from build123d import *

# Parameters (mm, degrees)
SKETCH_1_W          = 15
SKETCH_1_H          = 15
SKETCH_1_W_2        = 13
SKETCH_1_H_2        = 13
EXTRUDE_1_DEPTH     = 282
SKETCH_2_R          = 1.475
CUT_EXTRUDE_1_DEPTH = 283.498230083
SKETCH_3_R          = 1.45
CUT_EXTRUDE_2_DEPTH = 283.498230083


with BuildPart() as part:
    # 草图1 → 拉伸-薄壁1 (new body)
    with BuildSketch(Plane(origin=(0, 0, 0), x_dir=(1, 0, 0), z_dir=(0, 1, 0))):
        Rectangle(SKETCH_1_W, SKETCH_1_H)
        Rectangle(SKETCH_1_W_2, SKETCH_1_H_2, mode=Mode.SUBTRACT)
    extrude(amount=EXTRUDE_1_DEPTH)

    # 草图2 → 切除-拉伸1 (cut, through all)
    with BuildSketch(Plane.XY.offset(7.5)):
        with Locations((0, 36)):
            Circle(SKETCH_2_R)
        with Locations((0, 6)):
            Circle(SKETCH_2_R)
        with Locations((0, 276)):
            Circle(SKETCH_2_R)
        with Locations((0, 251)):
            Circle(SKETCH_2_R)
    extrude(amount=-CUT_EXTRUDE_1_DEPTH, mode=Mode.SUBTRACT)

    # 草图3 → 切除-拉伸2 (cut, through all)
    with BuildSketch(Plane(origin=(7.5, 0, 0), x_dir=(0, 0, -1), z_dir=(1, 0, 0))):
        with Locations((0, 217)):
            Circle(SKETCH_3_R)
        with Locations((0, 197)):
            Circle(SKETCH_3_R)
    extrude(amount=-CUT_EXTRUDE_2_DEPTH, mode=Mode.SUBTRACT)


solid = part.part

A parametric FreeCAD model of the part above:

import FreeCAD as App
import Part
import Sketcher
from FreeCAD import Vector


def add_polygon(sketch, points):
    """Adds a closed chain of lines whose ends are joined by coincident constraints."""
    first, n = sketch.GeometryCount, len(points)
    for a, b in zip(points, points[1:] + points[:1]):
        sketch.addGeometry(Part.LineSegment(App.Vector(*a, 0), App.Vector(*b, 0)), False)
    for i in range(n):
        sketch.addConstraint(Sketcher.Constraint("Coincident", first + i, 2, first + (i + 1) % n, 1))

doc = App.newDocument("Part")
params = doc.addObject("Spreadsheet::Sheet", "Params")
for row, (alias, value) in enumerate([
    ("sketch1_width", "15 mm"),
    ("sketch1_width2", "13 mm"),
    ("pad1_length", "282 mm"),
    ("sketch2_diameter", "2.95 mm"),
    ("sketch3_diameter", "2.9 mm"),
], start=1):
    params.set(f"A{row}", alias)
    params.set(f"B{row}", "=" + value)
    params.setAlias(f"B{row}", alias)

body = doc.addObject("PartDesign::Body", "Body")

sketch1 = body.newObject("Sketcher::SketchObject", "Sketch")
sketch1.AttachmentSupport = (doc.getObject("XZ_Plane"), [""])
sketch1.MapMode = "FlatFace"
add_polygon(sketch1, [(-8, -8), (-8, 8), (8, 8), (8, -8)])
add_polygon(sketch1, [(6, 6), (-6, 6), (-6, -6), (6, -6)])
sketch1.addConstraint([
    Sketcher.Constraint("Vertical", 0),
    Sketcher.Constraint("Horizontal", 1),
    Sketcher.Constraint("Vertical", 2),
    Sketcher.Constraint("Horizontal", 3),
    Sketcher.Constraint("Horizontal", 4),
    Sketcher.Constraint("Vertical", 5),
    Sketcher.Constraint("Horizontal", 6),
    Sketcher.Constraint("Vertical", 7),
    Sketcher.Constraint("Symmetric", 0, 2, 2, 2, -1, 1),
    Sketcher.Constraint("Symmetric", 4, 2, 6, 2, -1, 1),
    Sketcher.Constraint("Equal", 3, 0),
    Sketcher.Constraint("Equal", 6, 5),
    Sketcher.Constraint("DistanceX", 1, 1, 1, 2, 15.0),
    Sketcher.Constraint("DistanceX", 4, 2, 4, 1, 13.0),
])
sketch1.setExpression("Constraints[20]", "Params.sketch1_width")
sketch1.setExpression("Constraints[21]", "Params.sketch1_width2")
pad1 = body.newObject("PartDesign::Pad", "Pad")
pad1.Profile = sketch1
pad1.setExpression("Length", "Params.pad1_length")
pad1.Reversed = True

sketch2 = body.newObject("Sketcher::SketchObject", "Sketch001")
sketch2.AttachmentSupport = (doc.getObject("XY_Plane"), [""])
sketch2.MapMode = "FlatFace"
sketch2.AttachmentOffset = App.Placement(Vector(0, 0, 7.5), App.Rotation())
sketch2.addGeometry([
    Part.Circle(Vector(0, 36, 0), Vector(0, 0, 1), 1.5),
    Part.Circle(Vector(0, 6, 0), Vector(0, 0, 1), 1.5),
    Part.Circle(Vector(0, 276, 0), Vector(0, 0, 1), 1.5),
    Part.Circle(Vector(0, 251, 0), Vector(0, 0, 1), 1.5),
], False)
sketch2.addConstraint([
    Sketcher.Constraint("Equal", 0, 1),
    Sketcher.Constraint("Equal", 1, 2),
    Sketcher.Constraint("Equal", 2, 3),
    Sketcher.Constraint("PointOnObject", 0, 3, -2),
    Sketcher.Constraint("PointOnObject", 1, 3, -2),
    Sketcher.Constraint("PointOnObject", 2, 3, -2),
    Sketcher.Constraint("PointOnObject", 3, 3, -2),
    Sketcher.Constraint("Diameter", 0, 2.95),
    Sketcher.Constraint("DistanceY", -1, 1, 0, 3, 36.0),
    Sketcher.Constraint("DistanceY", -1, 1, 1, 3, 6.0),
    Sketcher.Constraint("DistanceY", -1, 1, 2, 3, 276.0),
    Sketcher.Constraint("DistanceY", -1, 1, 3, 3, 251.0),
])
sketch2.setExpression("Constraints[7]", "Params.sketch2_diameter")
pocket1 = body.newObject("PartDesign::Pocket", "Pocket")
pocket1.Profile = sketch2
pocket1.Type = "ThroughAll"

sketch3 = body.newObject("Sketcher::SketchObject", "Sketch002")
sketch3.AttachmentSupport = (doc.getObject("YZ_Plane"), [""])
sketch3.MapMode = "FlatFace"
sketch3.AttachmentOffset = App.Placement(Vector(0, 0, 7.5), App.Rotation())
sketch3.addGeometry([
    Part.Circle(Vector(217, 0, 0), Vector(0, 0, 1), 1.4),
    Part.Circle(Vector(197, 0, 0), Vector(0, 0, 1), 1.4),
], False)
sketch3.addConstraint([
    Sketcher.Constraint("Equal", 0, 1),
    Sketcher.Constraint("PointOnObject", 0, 3, -1),
    Sketcher.Constraint("PointOnObject", 1, 3, -1),
    Sketcher.Constraint("Diameter", 0, 2.9),
    Sketcher.Constraint("DistanceX", -1, 1, 0, 3, 217.0),
    Sketcher.Constraint("DistanceX", -1, 1, 1, 3, 197.0),
])
sketch3.setExpression("Constraints[3]", "Params.sketch3_diameter")
pocket2 = body.newObject("PartDesign::Pocket", "Pocket001")
pocket2.Profile = sketch3
pocket2.Type = "ThroughAll"

doc.recompute()
